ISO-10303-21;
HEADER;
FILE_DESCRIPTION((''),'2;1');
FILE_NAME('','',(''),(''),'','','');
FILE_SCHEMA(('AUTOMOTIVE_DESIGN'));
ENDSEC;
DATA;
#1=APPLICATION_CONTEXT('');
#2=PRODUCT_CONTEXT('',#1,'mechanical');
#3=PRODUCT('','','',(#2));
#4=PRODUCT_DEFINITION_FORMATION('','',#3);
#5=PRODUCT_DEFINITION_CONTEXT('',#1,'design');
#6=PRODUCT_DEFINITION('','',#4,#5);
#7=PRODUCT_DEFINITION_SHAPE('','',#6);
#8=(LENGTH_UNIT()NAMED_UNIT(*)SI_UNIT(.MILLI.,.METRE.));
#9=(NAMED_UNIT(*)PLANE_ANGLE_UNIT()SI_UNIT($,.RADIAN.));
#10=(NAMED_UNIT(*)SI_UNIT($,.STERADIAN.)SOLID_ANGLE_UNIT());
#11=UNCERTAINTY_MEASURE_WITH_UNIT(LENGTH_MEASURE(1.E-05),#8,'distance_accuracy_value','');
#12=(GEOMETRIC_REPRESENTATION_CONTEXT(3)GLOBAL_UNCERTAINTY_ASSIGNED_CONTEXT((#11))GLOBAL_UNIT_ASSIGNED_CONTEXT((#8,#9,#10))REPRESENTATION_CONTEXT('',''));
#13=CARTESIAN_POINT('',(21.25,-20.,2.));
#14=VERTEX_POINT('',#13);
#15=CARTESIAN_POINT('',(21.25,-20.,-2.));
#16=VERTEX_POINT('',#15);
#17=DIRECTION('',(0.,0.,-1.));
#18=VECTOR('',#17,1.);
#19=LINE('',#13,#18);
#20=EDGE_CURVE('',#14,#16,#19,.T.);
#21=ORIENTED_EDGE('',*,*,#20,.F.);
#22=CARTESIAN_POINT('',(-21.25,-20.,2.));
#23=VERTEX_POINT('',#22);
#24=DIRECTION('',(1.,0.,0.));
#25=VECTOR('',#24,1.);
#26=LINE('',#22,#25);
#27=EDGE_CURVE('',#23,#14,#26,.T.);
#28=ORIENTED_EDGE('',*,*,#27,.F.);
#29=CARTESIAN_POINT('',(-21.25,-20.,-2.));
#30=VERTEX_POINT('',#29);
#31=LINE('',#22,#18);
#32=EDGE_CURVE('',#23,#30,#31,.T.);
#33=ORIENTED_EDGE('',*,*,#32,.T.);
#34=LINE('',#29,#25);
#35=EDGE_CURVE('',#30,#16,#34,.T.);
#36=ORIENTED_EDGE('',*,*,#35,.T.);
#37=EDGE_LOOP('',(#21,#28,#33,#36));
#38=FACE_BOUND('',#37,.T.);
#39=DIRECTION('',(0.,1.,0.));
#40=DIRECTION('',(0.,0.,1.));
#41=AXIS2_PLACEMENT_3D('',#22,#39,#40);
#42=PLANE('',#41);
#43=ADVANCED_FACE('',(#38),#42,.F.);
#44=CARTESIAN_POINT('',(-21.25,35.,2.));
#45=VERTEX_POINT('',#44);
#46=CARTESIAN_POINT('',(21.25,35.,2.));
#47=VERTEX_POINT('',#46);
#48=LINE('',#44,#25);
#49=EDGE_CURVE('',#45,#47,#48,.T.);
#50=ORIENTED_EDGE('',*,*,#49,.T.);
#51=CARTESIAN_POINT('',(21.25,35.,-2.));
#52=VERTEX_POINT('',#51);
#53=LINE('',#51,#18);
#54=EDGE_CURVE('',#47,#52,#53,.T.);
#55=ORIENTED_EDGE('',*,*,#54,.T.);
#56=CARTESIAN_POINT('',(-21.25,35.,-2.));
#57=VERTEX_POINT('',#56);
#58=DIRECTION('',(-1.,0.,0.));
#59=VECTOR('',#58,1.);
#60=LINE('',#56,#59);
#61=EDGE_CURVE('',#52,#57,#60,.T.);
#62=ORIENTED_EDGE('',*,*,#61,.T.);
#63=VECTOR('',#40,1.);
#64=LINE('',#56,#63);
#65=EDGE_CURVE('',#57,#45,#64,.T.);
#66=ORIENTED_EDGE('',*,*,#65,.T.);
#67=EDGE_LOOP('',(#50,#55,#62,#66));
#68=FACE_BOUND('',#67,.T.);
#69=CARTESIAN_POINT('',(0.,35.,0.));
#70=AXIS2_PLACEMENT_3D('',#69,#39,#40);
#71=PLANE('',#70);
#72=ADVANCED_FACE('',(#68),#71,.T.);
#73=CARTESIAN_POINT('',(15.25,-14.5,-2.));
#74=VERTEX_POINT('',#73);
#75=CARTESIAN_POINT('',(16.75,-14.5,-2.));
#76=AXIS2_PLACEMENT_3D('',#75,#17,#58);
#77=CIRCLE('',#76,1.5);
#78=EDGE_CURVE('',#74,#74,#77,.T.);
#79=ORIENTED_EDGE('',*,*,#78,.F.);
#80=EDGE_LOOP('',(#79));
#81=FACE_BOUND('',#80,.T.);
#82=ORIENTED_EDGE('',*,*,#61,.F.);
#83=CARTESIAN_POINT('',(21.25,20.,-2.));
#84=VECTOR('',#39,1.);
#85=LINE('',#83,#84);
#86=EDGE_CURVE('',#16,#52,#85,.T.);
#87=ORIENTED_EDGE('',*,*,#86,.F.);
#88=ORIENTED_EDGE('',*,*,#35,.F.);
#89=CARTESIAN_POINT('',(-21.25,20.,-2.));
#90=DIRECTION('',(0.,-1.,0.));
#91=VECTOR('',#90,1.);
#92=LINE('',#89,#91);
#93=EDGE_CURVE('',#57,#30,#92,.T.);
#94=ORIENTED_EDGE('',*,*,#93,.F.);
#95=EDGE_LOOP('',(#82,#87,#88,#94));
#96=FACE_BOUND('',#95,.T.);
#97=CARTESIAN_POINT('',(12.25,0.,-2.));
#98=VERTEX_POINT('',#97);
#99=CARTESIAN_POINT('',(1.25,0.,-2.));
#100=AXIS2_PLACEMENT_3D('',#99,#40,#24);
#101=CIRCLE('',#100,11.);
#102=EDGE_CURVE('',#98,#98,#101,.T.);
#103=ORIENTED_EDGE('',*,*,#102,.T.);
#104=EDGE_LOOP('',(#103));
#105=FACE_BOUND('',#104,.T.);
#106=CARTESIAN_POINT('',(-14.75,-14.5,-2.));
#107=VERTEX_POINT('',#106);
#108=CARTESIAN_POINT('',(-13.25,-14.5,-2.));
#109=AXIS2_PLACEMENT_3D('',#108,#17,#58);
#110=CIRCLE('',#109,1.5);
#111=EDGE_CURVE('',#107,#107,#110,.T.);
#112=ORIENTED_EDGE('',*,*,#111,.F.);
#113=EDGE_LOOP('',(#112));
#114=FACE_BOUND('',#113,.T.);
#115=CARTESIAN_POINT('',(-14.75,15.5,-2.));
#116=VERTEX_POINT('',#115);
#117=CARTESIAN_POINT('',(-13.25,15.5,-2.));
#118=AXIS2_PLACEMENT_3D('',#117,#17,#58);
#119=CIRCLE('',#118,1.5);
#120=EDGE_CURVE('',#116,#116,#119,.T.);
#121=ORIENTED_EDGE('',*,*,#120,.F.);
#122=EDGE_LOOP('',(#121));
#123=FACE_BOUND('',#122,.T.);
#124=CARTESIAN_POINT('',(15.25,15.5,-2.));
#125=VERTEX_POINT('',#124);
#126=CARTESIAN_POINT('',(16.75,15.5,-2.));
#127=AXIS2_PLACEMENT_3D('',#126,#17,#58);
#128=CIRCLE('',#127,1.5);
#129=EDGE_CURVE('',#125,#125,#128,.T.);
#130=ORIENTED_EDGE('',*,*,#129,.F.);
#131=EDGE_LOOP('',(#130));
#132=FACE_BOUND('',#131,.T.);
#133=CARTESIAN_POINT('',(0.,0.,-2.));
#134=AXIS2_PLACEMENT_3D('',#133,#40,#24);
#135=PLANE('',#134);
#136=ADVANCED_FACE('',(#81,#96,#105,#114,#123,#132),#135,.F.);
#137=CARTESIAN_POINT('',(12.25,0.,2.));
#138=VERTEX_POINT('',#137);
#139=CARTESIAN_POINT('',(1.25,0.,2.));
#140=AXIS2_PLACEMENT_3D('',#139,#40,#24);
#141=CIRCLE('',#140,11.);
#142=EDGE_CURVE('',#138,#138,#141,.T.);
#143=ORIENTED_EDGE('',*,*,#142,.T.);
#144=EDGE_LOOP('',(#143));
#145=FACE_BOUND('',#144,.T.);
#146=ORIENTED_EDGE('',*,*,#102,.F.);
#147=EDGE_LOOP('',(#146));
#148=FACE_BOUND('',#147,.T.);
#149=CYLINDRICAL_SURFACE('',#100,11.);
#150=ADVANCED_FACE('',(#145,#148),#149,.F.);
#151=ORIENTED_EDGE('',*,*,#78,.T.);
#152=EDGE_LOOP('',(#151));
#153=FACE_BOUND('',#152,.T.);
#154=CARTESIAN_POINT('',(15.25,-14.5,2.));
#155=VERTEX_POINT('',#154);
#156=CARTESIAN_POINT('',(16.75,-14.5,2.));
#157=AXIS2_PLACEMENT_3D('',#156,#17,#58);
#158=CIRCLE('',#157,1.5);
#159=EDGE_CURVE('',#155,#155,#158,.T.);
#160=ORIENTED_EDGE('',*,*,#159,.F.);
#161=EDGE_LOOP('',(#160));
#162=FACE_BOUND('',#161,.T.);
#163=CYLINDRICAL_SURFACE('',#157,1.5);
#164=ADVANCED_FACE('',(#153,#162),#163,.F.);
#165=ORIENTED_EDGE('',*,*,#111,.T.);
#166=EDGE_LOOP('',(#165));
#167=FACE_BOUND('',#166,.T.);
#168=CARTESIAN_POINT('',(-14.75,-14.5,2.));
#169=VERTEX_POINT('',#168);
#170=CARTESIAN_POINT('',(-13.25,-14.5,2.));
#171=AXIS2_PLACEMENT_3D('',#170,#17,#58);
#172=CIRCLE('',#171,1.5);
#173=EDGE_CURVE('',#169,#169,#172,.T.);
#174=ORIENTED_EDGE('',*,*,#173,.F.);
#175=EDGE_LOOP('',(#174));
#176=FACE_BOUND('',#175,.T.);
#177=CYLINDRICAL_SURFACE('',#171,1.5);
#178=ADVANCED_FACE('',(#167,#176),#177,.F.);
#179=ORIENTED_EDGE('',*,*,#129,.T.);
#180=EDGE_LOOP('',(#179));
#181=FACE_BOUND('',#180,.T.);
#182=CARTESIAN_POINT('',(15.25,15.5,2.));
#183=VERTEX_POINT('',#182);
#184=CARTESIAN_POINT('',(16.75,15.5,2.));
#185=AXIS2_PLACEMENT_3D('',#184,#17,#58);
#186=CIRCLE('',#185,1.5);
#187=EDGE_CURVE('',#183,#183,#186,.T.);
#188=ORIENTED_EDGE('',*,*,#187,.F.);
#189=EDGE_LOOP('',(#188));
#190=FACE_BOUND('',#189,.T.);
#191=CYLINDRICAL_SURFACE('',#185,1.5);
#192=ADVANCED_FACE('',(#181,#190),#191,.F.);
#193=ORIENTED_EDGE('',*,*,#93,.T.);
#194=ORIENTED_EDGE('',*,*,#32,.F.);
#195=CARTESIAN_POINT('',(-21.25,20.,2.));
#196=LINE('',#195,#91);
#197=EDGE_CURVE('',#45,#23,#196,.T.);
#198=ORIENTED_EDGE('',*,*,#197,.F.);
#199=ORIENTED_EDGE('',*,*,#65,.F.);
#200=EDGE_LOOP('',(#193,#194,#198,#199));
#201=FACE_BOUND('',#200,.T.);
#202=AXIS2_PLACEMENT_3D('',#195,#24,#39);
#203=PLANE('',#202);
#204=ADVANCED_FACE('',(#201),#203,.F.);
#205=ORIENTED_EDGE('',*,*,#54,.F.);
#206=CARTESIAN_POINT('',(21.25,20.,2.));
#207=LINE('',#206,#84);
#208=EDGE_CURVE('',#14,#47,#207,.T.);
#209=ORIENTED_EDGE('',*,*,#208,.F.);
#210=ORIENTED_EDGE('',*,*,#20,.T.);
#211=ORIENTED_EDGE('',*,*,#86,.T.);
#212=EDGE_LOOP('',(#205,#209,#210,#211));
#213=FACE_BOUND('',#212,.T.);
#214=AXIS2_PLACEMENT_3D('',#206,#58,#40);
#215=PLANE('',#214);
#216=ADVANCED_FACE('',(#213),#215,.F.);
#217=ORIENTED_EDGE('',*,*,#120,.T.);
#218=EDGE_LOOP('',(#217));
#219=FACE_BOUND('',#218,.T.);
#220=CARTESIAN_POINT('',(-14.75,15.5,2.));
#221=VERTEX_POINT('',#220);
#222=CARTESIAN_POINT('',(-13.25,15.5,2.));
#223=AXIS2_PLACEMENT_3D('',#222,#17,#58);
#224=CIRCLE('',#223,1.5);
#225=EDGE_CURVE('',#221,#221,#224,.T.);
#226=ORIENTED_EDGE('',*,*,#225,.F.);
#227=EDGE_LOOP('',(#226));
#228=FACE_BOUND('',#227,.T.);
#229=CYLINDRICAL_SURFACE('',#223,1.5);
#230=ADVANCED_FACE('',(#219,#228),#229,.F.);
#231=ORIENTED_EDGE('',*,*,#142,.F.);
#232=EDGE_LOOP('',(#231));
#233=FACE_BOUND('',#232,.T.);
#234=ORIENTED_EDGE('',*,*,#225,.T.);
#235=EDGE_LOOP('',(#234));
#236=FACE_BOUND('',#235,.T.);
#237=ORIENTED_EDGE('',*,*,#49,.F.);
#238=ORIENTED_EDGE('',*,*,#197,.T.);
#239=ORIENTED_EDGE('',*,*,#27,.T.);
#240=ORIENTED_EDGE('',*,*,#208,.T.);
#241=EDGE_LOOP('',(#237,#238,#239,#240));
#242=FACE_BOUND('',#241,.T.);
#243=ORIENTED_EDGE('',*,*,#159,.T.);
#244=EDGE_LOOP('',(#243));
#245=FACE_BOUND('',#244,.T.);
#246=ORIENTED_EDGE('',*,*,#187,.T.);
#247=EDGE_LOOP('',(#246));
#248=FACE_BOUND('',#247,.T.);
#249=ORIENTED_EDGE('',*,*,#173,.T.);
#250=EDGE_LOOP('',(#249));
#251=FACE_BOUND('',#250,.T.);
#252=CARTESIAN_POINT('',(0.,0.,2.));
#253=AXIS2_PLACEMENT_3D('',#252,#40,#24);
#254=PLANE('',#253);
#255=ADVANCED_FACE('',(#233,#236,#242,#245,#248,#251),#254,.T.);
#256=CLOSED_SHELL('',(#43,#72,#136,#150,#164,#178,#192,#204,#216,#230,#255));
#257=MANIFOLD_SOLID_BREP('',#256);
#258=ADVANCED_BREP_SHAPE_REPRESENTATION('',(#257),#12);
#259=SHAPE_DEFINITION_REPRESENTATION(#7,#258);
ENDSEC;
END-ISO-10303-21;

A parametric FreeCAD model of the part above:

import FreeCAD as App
import Part
import Sketcher

doc = App.newDocument("Part")
params = doc.addObject("Spreadsheet::Sheet", "Params")
for row, (alias, value) in enumerate([
    ("sketch1_height", "40 mm"),
    ("sketch1_width", "42.5 mm"),
    ("pad1_length", "4 mm"),
    ("sketch2_diameter", "3 mm"),
    ("pocket1_length", "4 mm"),
    ("sketch3_diameter", "22 mm"),
    ("pocket2_length", "4 mm"),
    ("sketch4_height", "4 mm"),
    ("sketch4_width", "42.5 mm"),
    ("pad2_length", "15 mm"),
], start=1):
    params.set(f"A{row}", alias)
    params.set(f"B{row}", "=" + value)
    params.setAlias(f"B{row}", alias)

body = doc.addObject("PartDesign::Body", "Body")

sketch1 = doc.addObject("Sketcher::SketchObject", "Sketch")
body.addObject(sketch1)
sketch1.AttachmentSupport = (doc.XY_Plane, [""])
sketch1.MapMode = "FlatFace"
sketch1.addGeometry(Part.LineSegment(App.Vector(-21, 20, 0), App.Vector(-21, -20, 0)), False)
sketch1.addGeometry(Part.LineSegment(App.Vector(-21, -20, 0), App.Vector(21, -20, 0)), False)
sketch1.addGeometry(Part.LineSegment(App.Vector(21, -20, 0), App.Vector(21, 20, 0)), False)
sketch1.addGeometry(Part.LineSegment(App.Vector(21, 20, 0), App.Vector(-21, 20, 0)), False)
sketch1.addConstraint(Sketcher.Constraint("Coincident", 0, 2, 1, 1))
sketch1.addConstraint(Sketcher.Constraint("Coincident", 1, 2, 2, 1))
sketch1.addConstraint(Sketcher.Constraint("Coincident", 2, 2, 3, 1))
sketch1.addConstraint(Sketcher.Constraint("Coincident", 3, 2, 0, 1))
sketch1.addConstraint(Sketcher.Constraint("Vertical", 0))
sketch1.addConstraint(Sketcher.Constraint("Horizontal", 1))
sketch1.addConstraint(Sketcher.Constraint("Vertical", 2))
sketch1.addConstraint(Sketcher.Constraint("Horizontal", 3))
sketch1.addConstraint(Sketcher.Constraint("Symmetric", 0, 2, 2, 2, -1, 1))
sketch1.addConstraint(Sketcher.Constraint("DistanceY", 0, 2, 0, 1, 40.0))
sketch1.addConstraint(Sketcher.Constraint("DistanceX", 1, 1, 1, 2, 42.5))
sketch1.setExpression("Constraints[9]", "Params.sketch1_height")
sketch1.setExpression("Constraints[10]", "Params.sketch1_width")
pad1 = doc.addObject("PartDesign::Pad", "Pad")
body.addObject(pad1)
pad1.Profile = sketch1
pad1.setExpression("Length", "Params.pad1_length")
pad1.Midplane = True

sketch2 = doc.addObject("Sketcher::SketchObject", "Sketch001")
body.addObject(sketch2)
sketch2.AttachmentSupport = (doc.XY_Plane, [""])
sketch2.MapMode = "FlatFace"
sketch2.AttachmentOffset = App.Placement(App.Vector(0, 0, -2), App.Rotation())
sketch2.addGeometry(Part.Circle(App.Vector(16.8, 15.5, 0), App.Vector(0, 0, 1), 1.5), False)
sketch2.addGeometry(Part.Circle(App.Vector(-13.2, 15.5, 0), App.Vector(0, 0, 1), 1.5), False)
sketch2.addGeometry(Part.Circle(App.Vector(-13.2, -14.5, 0), App.Vector(0, 0, 1), 1.5), False)
sketch2.addGeometry(Part.Circle(App.Vector(16.8, -14.5, 0), App.Vector(0, 0, 1), 1.5), False)
sketch2.addConstraint(Sketcher.Constraint("Equal", 0, 1))
sketch2.addConstraint(Sketcher.Constraint("Equal", 1, 2))
sketch2.addConstraint(Sketcher.Constraint("Equal", 2, 3))
sketch2.addConstraint(Sketcher.Constraint("Horizontal", 0, 3, 1, 3))
sketch2.addConstraint(Sketcher.Constraint("Horizontal", 2, 3, 3, 3))
sketch2.addConstraint(Sketcher.Constraint("Vertical", 1, 3, 2, 3))
sketch2.addConstraint(Sketcher.Constraint("Vertical", 0, 3, 3, 3))
sketch2.addConstraint(Sketcher.Constraint("Diameter", 0, 3.0))
sketch2.addConstraint(Sketcher.Constraint("DistanceX", 1, 3, 0, 3, 30.0))
sketch2.addConstraint(Sketcher.Constraint("DistanceY", 2, 3, 1, 3, 30.0))
sketch2.addConstraint(Sketcher.Constraint("DistanceY", -1, 1, 0, 3, 15.5))
sketch2.addConstraint(Sketcher.Constraint("DistanceX", -1, 1, 0, 3, 16.75))
sketch2.setExpression("Constraints[7]", "Params.sketch2_diameter")
pocket1 = doc.addObject("PartDesign::Pocket", "Pocket")
body.addObject(pocket1)
pocket1.Profile = sketch2
pocket1.setExpression("Length", "Params.pocket1_length")
pocket1.Reversed = True

sketch3 = doc.addObject("Sketcher::SketchObject", "Sketch002")
body.addObject(sketch3)
sketch3.AttachmentSupport = (doc.XY_Plane, [""])
sketch3.MapMode = "FlatFace"
sketch3.AttachmentOffset = App.Placement(App.Vector(0, 0, 2), App.Rotation())
sketch3.addGeometry(Part.Circle(App.Vector(1, 0, 0), App.Vector(0, 0, 1), 11), False)
sketch3.addConstraint(Sketcher.Constraint("PointOnObject", 0, 3, -1))
sketch3.addConstraint(Sketcher.Constraint("Diameter", 0, 22.0))
sketch3.addConstraint(Sketcher.Constraint("DistanceX", -1, 1, 0, 3, 1.25))
sketch3.setExpression("Constraints[1]", "Params.sketch3_diameter")
pocket2 = doc.addObject("PartDesign::Pocket", "Pocket001")
body.addObject(pocket2)
pocket2.Profile = sketch3
pocket2.setExpression("Length", "Params.pocket2_length")

sketch4 = doc.addObject("Sketcher::SketchObject", "Sketch003")
body.addObject(sketch4)
sketch4.AttachmentSupport = (doc.XZ_Plane, [""])
sketch4.MapMode = "FlatFace"
sketch4.AttachmentOffset = App.Placement(App.Vector(0, 0, -20), App.Rotation())
sketch4.addGeometry(Part.LineSegment(App.Vector(-21.2, -2, 0), App.Vector(-21.2, 2, 0)), False)
sketch4.addGeometry(Part.LineSegment(App.Vector(-21.2, 2, 0), App.Vector(21.2, 2, 0)), False)
sketch4.addGeometry(Part.LineSegment(App.Vector(21.2, 2, 0), App.Vector(21.2, -2, 0)), False)
sketch4.addGeometry(Part.LineSegment(App.Vector(21.2, -2, 0), App.Vector(-21.2, -2, 0)), False)
sketch4.addConstraint(Sketcher.Constraint("Coincident", 0, 2, 1, 1))
sketch4.addConstraint(Sketcher.Constraint("Coincident", 1, 2, 2, 1))
sketch4.addConstraint(Sketcher.Constraint("Coincident", 2, 2, 3, 1))
sketch4.addConstraint(Sketcher.Constraint("Coincident", 3, 2, 0, 1))
sketch4.addConstraint(Sketcher.Constraint("Vertical", 0))
sketch4.addConstraint(Sketcher.Constraint("Horizontal", 1))
sketch4.addConstraint(Sketcher.Constraint("Vertical", 2))
sketch4.addConstraint(Sketcher.Constraint("Horizontal", 3))
sketch4.addConstraint(Sketcher.Constraint("Symmetric", 0, 2, 2, 2, -1, 1))
sketch4.addConstraint(Sketcher.Constraint("DistanceY", 0, 1, 0, 2, 4.0))
sketch4.addConstraint(Sketcher.Constraint("DistanceX", 1, 1, 1, 2, 42.5))
sketch4.setExpression("Constraints[9]", "Params.sketch4_height")
sketch4.setExpression("Constraints[10]", "Params.sketch4_width")
pad2 = doc.addObject("PartDesign::Pad", "Pad001")
body.addObject(pad2)
pad2.Profile = sketch4
pad2.setExpression("Length", "Params.pad2_length")
pad2.Reversed = True

doc.recompute()
